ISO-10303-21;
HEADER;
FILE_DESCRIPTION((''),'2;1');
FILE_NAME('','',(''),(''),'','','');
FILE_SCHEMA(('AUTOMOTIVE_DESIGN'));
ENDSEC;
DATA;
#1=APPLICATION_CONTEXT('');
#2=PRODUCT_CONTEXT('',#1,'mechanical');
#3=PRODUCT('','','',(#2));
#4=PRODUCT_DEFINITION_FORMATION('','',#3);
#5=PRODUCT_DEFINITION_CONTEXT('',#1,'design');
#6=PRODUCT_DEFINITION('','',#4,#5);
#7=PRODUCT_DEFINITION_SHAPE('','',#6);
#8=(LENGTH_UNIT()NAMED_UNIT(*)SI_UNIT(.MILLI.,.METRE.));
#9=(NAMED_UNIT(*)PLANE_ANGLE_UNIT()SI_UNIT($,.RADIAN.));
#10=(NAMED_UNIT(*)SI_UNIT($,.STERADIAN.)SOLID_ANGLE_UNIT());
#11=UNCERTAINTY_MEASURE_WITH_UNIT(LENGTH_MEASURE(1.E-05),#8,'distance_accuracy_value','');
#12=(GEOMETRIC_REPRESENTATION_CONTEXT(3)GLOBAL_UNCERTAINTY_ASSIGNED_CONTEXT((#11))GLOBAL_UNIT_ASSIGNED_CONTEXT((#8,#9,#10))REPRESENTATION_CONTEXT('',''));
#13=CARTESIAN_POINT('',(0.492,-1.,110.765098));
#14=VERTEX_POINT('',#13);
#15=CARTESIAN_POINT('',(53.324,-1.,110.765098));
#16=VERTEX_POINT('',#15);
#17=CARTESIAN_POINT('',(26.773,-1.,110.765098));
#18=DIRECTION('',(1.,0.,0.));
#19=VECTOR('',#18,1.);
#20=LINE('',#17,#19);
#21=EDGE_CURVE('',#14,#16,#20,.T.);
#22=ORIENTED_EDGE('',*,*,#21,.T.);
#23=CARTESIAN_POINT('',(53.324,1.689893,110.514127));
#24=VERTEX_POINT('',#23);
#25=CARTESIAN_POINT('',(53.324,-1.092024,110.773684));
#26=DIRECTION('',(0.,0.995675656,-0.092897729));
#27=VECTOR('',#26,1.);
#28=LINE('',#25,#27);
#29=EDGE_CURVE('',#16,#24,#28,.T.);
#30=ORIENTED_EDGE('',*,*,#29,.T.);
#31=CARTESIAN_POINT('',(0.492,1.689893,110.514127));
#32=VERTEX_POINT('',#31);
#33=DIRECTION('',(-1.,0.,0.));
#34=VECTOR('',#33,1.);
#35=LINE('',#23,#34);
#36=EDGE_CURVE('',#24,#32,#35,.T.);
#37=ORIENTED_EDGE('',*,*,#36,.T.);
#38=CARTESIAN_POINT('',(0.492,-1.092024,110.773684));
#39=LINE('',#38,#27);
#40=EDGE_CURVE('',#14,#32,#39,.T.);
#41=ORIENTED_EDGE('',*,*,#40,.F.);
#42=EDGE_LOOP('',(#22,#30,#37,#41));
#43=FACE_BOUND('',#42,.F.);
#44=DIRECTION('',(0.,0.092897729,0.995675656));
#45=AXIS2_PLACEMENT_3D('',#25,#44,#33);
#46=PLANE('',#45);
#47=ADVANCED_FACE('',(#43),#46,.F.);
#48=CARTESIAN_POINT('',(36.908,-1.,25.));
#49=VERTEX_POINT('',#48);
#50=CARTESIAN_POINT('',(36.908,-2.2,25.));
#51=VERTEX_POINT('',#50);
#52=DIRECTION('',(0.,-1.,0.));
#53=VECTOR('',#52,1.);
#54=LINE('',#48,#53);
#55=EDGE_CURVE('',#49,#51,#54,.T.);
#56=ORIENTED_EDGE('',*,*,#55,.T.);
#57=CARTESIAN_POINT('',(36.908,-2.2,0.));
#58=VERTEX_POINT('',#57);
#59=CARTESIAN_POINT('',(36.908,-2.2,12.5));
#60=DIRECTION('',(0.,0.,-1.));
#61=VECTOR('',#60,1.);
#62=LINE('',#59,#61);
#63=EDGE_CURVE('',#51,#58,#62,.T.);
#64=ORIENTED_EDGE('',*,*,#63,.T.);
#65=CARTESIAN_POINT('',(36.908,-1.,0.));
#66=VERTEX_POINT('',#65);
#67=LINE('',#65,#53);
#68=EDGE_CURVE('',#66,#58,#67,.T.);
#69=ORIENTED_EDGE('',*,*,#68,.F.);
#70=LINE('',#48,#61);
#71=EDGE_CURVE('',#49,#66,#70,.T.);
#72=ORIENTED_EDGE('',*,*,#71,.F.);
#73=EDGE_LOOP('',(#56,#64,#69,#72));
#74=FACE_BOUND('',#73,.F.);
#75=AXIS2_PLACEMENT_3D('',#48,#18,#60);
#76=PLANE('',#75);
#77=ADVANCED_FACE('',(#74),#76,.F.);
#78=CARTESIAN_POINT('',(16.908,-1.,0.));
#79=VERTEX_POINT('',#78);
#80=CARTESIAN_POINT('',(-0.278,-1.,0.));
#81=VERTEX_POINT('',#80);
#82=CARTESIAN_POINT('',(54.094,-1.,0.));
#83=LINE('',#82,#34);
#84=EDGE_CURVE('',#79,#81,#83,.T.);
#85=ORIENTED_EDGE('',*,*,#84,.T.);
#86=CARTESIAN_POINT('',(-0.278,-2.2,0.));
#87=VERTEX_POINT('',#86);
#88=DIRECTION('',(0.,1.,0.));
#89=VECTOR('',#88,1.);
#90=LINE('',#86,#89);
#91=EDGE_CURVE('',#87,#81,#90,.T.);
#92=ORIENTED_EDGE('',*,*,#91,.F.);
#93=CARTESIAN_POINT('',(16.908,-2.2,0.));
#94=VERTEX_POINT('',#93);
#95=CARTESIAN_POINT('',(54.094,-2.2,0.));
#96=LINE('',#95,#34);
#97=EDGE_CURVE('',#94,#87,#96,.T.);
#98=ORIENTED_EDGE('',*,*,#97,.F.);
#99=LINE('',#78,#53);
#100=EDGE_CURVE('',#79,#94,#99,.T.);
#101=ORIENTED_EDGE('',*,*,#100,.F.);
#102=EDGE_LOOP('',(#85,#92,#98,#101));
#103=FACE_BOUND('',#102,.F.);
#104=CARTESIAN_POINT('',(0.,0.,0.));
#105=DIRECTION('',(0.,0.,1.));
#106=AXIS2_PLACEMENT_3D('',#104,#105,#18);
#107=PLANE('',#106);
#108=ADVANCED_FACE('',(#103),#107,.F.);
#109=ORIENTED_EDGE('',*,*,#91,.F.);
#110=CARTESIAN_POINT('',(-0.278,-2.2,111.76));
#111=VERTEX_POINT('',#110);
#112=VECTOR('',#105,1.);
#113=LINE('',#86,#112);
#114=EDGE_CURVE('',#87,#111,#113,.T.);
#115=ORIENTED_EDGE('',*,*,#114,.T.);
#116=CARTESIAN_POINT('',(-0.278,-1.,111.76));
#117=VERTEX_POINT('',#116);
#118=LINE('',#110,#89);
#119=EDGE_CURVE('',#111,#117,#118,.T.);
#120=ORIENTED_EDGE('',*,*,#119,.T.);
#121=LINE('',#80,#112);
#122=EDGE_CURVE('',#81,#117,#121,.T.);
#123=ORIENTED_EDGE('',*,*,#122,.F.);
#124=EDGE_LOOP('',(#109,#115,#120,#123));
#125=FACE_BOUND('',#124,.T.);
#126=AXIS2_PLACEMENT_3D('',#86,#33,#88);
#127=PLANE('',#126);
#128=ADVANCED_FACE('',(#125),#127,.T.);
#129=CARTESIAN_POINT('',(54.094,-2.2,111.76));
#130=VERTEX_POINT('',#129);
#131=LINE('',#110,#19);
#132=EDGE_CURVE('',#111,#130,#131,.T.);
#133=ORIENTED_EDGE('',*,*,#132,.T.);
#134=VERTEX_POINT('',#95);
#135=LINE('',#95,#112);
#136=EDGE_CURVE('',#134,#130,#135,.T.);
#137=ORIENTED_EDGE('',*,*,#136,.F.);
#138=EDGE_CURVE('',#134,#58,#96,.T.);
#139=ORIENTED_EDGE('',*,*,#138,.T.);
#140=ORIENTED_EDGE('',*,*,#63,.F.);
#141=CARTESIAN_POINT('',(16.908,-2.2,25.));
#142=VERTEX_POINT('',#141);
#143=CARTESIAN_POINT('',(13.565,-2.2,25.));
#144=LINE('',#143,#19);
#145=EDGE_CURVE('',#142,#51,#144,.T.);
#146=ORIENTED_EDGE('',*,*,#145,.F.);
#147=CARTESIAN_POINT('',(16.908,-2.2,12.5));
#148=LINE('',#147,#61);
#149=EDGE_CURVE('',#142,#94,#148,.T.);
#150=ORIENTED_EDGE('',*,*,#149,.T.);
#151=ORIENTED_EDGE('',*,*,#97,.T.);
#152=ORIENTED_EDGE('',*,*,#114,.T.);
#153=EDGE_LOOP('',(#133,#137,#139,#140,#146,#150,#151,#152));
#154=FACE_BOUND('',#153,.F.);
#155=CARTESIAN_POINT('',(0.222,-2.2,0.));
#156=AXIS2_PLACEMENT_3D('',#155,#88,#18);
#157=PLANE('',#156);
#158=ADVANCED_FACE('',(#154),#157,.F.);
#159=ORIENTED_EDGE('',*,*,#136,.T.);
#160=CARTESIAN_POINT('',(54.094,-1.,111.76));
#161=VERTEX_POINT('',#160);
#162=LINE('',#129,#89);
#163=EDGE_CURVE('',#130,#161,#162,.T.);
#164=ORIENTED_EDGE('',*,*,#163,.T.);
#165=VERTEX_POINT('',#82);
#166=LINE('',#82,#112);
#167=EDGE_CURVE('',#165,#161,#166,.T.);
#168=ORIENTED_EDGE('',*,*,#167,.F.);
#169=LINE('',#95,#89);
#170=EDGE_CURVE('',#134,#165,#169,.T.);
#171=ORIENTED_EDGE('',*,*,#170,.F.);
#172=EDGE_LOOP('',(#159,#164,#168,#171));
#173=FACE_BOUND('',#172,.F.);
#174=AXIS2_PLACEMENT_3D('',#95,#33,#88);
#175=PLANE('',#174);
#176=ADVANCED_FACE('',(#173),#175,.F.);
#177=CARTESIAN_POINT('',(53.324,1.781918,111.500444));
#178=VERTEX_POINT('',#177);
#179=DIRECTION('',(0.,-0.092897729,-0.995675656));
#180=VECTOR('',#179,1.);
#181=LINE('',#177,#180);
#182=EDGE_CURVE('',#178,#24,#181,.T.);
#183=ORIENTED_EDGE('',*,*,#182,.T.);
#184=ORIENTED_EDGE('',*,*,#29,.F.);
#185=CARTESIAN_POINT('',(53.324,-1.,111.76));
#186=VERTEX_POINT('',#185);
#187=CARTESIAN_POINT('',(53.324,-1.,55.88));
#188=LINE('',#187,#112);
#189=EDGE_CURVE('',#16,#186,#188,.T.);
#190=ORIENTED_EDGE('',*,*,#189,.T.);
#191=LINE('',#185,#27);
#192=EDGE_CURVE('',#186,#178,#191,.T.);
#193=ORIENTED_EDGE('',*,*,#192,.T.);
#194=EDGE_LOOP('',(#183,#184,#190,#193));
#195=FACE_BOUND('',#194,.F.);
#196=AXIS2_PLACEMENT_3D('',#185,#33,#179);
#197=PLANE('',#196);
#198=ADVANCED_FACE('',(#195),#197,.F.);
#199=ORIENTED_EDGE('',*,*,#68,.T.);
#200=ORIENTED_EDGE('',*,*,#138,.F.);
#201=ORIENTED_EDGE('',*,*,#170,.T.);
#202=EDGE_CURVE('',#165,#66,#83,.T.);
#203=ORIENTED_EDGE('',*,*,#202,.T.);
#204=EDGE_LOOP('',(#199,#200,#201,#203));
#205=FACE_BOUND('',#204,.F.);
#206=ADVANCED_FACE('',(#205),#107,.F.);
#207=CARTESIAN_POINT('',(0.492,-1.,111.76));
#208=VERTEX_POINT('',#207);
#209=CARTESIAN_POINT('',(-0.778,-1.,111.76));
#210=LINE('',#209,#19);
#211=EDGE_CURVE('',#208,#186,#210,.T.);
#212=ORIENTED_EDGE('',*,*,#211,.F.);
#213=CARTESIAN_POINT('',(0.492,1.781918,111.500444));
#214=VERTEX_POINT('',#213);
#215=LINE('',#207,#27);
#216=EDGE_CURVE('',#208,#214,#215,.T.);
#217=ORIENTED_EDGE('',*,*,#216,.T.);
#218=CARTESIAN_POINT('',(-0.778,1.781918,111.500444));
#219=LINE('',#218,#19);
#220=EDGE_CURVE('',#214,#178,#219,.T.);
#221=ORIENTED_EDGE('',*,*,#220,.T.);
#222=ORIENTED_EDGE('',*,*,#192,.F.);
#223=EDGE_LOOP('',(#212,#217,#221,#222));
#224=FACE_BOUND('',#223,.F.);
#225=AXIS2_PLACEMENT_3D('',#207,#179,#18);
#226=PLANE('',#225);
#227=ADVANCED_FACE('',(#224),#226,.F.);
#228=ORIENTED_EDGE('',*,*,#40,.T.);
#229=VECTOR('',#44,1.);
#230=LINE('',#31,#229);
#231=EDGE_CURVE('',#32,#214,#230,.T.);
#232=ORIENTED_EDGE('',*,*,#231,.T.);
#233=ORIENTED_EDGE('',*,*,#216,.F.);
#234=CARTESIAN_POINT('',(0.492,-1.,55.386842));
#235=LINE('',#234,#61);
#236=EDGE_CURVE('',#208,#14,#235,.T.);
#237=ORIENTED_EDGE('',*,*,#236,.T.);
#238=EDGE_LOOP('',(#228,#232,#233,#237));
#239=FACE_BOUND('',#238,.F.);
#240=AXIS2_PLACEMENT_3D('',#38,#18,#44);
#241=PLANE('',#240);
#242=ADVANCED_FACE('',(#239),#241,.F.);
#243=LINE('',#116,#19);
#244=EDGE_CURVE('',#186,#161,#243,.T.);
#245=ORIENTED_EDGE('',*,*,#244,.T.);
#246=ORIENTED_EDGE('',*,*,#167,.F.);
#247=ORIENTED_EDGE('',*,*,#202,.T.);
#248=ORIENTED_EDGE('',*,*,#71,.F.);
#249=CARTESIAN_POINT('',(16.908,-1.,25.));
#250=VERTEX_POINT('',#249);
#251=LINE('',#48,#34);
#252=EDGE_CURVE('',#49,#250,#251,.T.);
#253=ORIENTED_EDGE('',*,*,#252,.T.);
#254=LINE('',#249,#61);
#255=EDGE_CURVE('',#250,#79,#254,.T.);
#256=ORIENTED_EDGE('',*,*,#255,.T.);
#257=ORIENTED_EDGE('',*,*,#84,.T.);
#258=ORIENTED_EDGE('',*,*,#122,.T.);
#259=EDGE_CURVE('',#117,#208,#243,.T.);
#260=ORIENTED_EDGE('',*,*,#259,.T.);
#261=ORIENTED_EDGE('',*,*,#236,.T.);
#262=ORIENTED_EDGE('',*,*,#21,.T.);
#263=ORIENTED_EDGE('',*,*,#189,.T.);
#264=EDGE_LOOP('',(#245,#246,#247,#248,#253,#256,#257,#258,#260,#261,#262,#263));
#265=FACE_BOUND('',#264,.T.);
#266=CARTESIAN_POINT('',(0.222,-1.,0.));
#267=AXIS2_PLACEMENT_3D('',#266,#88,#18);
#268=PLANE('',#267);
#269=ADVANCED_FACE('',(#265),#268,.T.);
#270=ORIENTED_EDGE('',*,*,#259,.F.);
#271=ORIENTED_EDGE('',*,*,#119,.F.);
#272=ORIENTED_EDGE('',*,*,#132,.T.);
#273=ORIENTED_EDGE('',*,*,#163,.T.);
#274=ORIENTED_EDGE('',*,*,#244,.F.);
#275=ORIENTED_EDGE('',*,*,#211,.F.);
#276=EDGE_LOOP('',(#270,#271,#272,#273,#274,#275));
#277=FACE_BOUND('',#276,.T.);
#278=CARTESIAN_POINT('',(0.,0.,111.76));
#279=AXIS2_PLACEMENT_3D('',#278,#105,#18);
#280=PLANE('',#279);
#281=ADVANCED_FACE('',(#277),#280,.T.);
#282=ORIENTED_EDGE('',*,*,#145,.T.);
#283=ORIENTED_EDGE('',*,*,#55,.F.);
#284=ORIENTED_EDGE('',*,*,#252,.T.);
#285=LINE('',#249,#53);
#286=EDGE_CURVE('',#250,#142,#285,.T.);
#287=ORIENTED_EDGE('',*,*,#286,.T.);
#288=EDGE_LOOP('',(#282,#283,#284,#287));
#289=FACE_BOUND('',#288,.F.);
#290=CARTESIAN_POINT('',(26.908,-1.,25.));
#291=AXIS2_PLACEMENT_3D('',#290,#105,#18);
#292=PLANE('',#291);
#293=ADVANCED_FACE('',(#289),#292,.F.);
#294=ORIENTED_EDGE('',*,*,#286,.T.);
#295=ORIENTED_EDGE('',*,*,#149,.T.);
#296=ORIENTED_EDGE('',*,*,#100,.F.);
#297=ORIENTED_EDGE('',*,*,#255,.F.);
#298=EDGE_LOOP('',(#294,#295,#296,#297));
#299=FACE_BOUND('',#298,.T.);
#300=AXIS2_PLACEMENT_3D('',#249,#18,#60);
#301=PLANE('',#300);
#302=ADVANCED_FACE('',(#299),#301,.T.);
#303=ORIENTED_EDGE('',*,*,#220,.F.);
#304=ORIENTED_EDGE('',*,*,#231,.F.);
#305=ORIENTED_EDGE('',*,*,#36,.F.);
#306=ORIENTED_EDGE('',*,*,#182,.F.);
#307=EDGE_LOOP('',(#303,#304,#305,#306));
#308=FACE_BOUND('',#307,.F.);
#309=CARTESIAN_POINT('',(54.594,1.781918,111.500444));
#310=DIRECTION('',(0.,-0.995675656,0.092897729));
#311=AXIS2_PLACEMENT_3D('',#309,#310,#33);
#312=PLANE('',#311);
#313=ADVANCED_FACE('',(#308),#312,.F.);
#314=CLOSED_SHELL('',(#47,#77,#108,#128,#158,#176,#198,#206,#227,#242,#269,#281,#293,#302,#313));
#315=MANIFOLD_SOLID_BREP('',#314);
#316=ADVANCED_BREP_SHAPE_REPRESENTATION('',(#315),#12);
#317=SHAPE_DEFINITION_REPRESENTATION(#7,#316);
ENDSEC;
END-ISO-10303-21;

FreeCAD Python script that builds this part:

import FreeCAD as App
import Part
import Sketcher
Q = App.Units.Quantity


def add_polygon(sketch, points):
    """Adds a closed chain of lines whose ends are joined by coincident constraints."""
    first, n = sketch.GeometryCount, len(points)
    for a, b in zip(points, points[1:] + points[:1]):
        sketch.addGeometry(Part.LineSegment(App.Vector(*a, 0), App.Vector(*b, 0)), False)
    for i in range(n):
        sketch.addConstraint(Sketcher.Constraint("Coincident", first + i, 2, first + (i + 1) % n, 1))

doc = App.newDocument("Part")
params = doc.addObject("Spreadsheet::Sheet", "Params")
for row, (alias, value) in enumerate([
    ("sketch1_width", "2.1406299 in"),
    ("pad1_length", "4.4 in"),
    ("pocket1_length", "4.4 in"),
    ("sketch3_height", "0.039 in"),
    ("sketch3_width", "2.08 in"),
    ("pad2_length", "0.11 in"),
], start=1):
    params.set(f"A{row}", alias)
    params.set(f"B{row}", "=" + value)
    params.setAlias(f"B{row}", alias)

body = doc.addObject("PartDesign::Body", "Body")

sketch1 = doc.addObject("Sketcher::SketchObject", "Sketch")
body.addObject(sketch1)
sketch1.AttachmentSupport = (doc.XY_Plane, [""])
sketch1.MapMode = "FlatFace"
add_polygon(sketch1, [(-0.278, -1), (-0.278, -2.2), (54.094, -2.2), (54.094, -1)])
sketch1.addConstraint(Sketcher.Constraint("Vertical", 0))
sketch1.addConstraint(Sketcher.Constraint("Horizontal", 1))
sketch1.addConstraint(Sketcher.Constraint("Vertical", 2))
sketch1.addConstraint(Sketcher.Constraint("Horizontal", 3))
sketch1.addConstraint(Sketcher.Constraint("DistanceY", 0, 2, 0, 1, 1.2))
sketch1.addConstraint(Sketcher.Constraint("DistanceX", 1, 1, 1, 2, Q("2.1406299 in")))
sketch1.addConstraint(Sketcher.Constraint("DistanceY", 2, 2, -1, 1, 1.0))
sketch1.addConstraint(Sketcher.Constraint("DistanceX", 0, 2, -1, 1, 0.278))
sketch1.setExpression("Constraints[9]", "Params.sketch1_width")
pad1 = doc.addObject("PartDesign::Pad", "Pad")
body.addObject(pad1)
pad1.Profile = sketch1
pad1.setExpression("Length", "Params.pad1_length")

sketch2 = doc.addObject("Sketcher::SketchObject", "Sketch001")
body.addObject(sketch2)
sketch2.AttachmentSupport = (doc.XZ_Plane, [""])
sketch2.MapMode = "FlatFace"
sketch2.AttachmentOffset = App.Placement(App.Vector(0, 0, 1), App.Rotation())
add_polygon(sketch2, [(36.908, 25), (36.908, 0), (16.908, 0), (16.908, 25)])
sketch2.addConstraint(Sketcher.Constraint("Vertical", 0))
sketch2.addConstraint(Sketcher.Constraint("Horizontal", 1))
sketch2.addConstraint(Sketcher.Constraint("Vertical", 2))
sketch2.addConstraint(Sketcher.Constraint("Horizontal", 3))
sketch2.addConstraint(Sketcher.Constraint("PointOnObject", 0, 2, -1))
sketch2.addConstraint(Sketcher.Constraint("DistanceY", 0, 2, 0, 1, 25.0))
sketch2.addConstraint(Sketcher.Constraint("DistanceX", 1, 2, 1, 1, Q("0.7874 in")))
sketch2.addConstraint(Sketcher.Constraint("DistanceX", -1, 1, 0, 2, 36.908))
pocket1 = doc.addObject("PartDesign::Pocket", "Pocket")
body.addObject(pocket1)
pocket1.Profile = sketch2
pocket1.setExpression("Length", "Params.pocket1_length")
pocket1.Reversed = True

sketch3 = doc.addObject("Sketcher::SketchObject", "Sketch002")
body.addObject(sketch3)
sketch3.Placement = App.Placement(App.Vector(54.594, -1, 111.76), App.Rotation(App.Vector(-1, 0, 0), App.Vector(0, -0.092897729, -0.995675656), App.Vector(0, -0.995675656, 0.092897729), "ZXY"))
add_polygon(sketch3, [(1.27, 0), (54.102, 0), (54.102, 0.9906), (1.27, 0.9906)])
sketch3.addConstraint(Sketcher.Constraint("Horizontal", 0))
sketch3.addConstraint(Sketcher.Constraint("Vertical", 1))
sketch3.addConstraint(Sketcher.Constraint("Horizontal", 2))
sketch3.addConstraint(Sketcher.Constraint("Vertical", 3))
sketch3.addConstraint(Sketcher.Constraint("PointOnObject", 0, 2, -1))
sketch3.addConstraint(Sketcher.Constraint("DistanceY", 1, 1, 1, 2, Q("0.039 in")))
sketch3.addConstraint(Sketcher.Constraint("DistanceX", -1, 1, 2, 2, Q("0.05 in")))
sketch3.addConstraint(Sketcher.Constraint("DistanceX", 0, 1, 0, 2, Q("2.08 in")))
sketch3.setExpression("Constraints[9]", "Params.sketch3_height")
sketch3.setExpression("Constraints[11]", "Params.sketch3_width")
pad2 = doc.addObject("PartDesign::Pad", "Pad001")
body.addObject(pad2)
pad2.Profile = sketch3
pad2.setExpression("Length", "Params.pad2_length")
pad2.Reversed = True

doc.recompute()
